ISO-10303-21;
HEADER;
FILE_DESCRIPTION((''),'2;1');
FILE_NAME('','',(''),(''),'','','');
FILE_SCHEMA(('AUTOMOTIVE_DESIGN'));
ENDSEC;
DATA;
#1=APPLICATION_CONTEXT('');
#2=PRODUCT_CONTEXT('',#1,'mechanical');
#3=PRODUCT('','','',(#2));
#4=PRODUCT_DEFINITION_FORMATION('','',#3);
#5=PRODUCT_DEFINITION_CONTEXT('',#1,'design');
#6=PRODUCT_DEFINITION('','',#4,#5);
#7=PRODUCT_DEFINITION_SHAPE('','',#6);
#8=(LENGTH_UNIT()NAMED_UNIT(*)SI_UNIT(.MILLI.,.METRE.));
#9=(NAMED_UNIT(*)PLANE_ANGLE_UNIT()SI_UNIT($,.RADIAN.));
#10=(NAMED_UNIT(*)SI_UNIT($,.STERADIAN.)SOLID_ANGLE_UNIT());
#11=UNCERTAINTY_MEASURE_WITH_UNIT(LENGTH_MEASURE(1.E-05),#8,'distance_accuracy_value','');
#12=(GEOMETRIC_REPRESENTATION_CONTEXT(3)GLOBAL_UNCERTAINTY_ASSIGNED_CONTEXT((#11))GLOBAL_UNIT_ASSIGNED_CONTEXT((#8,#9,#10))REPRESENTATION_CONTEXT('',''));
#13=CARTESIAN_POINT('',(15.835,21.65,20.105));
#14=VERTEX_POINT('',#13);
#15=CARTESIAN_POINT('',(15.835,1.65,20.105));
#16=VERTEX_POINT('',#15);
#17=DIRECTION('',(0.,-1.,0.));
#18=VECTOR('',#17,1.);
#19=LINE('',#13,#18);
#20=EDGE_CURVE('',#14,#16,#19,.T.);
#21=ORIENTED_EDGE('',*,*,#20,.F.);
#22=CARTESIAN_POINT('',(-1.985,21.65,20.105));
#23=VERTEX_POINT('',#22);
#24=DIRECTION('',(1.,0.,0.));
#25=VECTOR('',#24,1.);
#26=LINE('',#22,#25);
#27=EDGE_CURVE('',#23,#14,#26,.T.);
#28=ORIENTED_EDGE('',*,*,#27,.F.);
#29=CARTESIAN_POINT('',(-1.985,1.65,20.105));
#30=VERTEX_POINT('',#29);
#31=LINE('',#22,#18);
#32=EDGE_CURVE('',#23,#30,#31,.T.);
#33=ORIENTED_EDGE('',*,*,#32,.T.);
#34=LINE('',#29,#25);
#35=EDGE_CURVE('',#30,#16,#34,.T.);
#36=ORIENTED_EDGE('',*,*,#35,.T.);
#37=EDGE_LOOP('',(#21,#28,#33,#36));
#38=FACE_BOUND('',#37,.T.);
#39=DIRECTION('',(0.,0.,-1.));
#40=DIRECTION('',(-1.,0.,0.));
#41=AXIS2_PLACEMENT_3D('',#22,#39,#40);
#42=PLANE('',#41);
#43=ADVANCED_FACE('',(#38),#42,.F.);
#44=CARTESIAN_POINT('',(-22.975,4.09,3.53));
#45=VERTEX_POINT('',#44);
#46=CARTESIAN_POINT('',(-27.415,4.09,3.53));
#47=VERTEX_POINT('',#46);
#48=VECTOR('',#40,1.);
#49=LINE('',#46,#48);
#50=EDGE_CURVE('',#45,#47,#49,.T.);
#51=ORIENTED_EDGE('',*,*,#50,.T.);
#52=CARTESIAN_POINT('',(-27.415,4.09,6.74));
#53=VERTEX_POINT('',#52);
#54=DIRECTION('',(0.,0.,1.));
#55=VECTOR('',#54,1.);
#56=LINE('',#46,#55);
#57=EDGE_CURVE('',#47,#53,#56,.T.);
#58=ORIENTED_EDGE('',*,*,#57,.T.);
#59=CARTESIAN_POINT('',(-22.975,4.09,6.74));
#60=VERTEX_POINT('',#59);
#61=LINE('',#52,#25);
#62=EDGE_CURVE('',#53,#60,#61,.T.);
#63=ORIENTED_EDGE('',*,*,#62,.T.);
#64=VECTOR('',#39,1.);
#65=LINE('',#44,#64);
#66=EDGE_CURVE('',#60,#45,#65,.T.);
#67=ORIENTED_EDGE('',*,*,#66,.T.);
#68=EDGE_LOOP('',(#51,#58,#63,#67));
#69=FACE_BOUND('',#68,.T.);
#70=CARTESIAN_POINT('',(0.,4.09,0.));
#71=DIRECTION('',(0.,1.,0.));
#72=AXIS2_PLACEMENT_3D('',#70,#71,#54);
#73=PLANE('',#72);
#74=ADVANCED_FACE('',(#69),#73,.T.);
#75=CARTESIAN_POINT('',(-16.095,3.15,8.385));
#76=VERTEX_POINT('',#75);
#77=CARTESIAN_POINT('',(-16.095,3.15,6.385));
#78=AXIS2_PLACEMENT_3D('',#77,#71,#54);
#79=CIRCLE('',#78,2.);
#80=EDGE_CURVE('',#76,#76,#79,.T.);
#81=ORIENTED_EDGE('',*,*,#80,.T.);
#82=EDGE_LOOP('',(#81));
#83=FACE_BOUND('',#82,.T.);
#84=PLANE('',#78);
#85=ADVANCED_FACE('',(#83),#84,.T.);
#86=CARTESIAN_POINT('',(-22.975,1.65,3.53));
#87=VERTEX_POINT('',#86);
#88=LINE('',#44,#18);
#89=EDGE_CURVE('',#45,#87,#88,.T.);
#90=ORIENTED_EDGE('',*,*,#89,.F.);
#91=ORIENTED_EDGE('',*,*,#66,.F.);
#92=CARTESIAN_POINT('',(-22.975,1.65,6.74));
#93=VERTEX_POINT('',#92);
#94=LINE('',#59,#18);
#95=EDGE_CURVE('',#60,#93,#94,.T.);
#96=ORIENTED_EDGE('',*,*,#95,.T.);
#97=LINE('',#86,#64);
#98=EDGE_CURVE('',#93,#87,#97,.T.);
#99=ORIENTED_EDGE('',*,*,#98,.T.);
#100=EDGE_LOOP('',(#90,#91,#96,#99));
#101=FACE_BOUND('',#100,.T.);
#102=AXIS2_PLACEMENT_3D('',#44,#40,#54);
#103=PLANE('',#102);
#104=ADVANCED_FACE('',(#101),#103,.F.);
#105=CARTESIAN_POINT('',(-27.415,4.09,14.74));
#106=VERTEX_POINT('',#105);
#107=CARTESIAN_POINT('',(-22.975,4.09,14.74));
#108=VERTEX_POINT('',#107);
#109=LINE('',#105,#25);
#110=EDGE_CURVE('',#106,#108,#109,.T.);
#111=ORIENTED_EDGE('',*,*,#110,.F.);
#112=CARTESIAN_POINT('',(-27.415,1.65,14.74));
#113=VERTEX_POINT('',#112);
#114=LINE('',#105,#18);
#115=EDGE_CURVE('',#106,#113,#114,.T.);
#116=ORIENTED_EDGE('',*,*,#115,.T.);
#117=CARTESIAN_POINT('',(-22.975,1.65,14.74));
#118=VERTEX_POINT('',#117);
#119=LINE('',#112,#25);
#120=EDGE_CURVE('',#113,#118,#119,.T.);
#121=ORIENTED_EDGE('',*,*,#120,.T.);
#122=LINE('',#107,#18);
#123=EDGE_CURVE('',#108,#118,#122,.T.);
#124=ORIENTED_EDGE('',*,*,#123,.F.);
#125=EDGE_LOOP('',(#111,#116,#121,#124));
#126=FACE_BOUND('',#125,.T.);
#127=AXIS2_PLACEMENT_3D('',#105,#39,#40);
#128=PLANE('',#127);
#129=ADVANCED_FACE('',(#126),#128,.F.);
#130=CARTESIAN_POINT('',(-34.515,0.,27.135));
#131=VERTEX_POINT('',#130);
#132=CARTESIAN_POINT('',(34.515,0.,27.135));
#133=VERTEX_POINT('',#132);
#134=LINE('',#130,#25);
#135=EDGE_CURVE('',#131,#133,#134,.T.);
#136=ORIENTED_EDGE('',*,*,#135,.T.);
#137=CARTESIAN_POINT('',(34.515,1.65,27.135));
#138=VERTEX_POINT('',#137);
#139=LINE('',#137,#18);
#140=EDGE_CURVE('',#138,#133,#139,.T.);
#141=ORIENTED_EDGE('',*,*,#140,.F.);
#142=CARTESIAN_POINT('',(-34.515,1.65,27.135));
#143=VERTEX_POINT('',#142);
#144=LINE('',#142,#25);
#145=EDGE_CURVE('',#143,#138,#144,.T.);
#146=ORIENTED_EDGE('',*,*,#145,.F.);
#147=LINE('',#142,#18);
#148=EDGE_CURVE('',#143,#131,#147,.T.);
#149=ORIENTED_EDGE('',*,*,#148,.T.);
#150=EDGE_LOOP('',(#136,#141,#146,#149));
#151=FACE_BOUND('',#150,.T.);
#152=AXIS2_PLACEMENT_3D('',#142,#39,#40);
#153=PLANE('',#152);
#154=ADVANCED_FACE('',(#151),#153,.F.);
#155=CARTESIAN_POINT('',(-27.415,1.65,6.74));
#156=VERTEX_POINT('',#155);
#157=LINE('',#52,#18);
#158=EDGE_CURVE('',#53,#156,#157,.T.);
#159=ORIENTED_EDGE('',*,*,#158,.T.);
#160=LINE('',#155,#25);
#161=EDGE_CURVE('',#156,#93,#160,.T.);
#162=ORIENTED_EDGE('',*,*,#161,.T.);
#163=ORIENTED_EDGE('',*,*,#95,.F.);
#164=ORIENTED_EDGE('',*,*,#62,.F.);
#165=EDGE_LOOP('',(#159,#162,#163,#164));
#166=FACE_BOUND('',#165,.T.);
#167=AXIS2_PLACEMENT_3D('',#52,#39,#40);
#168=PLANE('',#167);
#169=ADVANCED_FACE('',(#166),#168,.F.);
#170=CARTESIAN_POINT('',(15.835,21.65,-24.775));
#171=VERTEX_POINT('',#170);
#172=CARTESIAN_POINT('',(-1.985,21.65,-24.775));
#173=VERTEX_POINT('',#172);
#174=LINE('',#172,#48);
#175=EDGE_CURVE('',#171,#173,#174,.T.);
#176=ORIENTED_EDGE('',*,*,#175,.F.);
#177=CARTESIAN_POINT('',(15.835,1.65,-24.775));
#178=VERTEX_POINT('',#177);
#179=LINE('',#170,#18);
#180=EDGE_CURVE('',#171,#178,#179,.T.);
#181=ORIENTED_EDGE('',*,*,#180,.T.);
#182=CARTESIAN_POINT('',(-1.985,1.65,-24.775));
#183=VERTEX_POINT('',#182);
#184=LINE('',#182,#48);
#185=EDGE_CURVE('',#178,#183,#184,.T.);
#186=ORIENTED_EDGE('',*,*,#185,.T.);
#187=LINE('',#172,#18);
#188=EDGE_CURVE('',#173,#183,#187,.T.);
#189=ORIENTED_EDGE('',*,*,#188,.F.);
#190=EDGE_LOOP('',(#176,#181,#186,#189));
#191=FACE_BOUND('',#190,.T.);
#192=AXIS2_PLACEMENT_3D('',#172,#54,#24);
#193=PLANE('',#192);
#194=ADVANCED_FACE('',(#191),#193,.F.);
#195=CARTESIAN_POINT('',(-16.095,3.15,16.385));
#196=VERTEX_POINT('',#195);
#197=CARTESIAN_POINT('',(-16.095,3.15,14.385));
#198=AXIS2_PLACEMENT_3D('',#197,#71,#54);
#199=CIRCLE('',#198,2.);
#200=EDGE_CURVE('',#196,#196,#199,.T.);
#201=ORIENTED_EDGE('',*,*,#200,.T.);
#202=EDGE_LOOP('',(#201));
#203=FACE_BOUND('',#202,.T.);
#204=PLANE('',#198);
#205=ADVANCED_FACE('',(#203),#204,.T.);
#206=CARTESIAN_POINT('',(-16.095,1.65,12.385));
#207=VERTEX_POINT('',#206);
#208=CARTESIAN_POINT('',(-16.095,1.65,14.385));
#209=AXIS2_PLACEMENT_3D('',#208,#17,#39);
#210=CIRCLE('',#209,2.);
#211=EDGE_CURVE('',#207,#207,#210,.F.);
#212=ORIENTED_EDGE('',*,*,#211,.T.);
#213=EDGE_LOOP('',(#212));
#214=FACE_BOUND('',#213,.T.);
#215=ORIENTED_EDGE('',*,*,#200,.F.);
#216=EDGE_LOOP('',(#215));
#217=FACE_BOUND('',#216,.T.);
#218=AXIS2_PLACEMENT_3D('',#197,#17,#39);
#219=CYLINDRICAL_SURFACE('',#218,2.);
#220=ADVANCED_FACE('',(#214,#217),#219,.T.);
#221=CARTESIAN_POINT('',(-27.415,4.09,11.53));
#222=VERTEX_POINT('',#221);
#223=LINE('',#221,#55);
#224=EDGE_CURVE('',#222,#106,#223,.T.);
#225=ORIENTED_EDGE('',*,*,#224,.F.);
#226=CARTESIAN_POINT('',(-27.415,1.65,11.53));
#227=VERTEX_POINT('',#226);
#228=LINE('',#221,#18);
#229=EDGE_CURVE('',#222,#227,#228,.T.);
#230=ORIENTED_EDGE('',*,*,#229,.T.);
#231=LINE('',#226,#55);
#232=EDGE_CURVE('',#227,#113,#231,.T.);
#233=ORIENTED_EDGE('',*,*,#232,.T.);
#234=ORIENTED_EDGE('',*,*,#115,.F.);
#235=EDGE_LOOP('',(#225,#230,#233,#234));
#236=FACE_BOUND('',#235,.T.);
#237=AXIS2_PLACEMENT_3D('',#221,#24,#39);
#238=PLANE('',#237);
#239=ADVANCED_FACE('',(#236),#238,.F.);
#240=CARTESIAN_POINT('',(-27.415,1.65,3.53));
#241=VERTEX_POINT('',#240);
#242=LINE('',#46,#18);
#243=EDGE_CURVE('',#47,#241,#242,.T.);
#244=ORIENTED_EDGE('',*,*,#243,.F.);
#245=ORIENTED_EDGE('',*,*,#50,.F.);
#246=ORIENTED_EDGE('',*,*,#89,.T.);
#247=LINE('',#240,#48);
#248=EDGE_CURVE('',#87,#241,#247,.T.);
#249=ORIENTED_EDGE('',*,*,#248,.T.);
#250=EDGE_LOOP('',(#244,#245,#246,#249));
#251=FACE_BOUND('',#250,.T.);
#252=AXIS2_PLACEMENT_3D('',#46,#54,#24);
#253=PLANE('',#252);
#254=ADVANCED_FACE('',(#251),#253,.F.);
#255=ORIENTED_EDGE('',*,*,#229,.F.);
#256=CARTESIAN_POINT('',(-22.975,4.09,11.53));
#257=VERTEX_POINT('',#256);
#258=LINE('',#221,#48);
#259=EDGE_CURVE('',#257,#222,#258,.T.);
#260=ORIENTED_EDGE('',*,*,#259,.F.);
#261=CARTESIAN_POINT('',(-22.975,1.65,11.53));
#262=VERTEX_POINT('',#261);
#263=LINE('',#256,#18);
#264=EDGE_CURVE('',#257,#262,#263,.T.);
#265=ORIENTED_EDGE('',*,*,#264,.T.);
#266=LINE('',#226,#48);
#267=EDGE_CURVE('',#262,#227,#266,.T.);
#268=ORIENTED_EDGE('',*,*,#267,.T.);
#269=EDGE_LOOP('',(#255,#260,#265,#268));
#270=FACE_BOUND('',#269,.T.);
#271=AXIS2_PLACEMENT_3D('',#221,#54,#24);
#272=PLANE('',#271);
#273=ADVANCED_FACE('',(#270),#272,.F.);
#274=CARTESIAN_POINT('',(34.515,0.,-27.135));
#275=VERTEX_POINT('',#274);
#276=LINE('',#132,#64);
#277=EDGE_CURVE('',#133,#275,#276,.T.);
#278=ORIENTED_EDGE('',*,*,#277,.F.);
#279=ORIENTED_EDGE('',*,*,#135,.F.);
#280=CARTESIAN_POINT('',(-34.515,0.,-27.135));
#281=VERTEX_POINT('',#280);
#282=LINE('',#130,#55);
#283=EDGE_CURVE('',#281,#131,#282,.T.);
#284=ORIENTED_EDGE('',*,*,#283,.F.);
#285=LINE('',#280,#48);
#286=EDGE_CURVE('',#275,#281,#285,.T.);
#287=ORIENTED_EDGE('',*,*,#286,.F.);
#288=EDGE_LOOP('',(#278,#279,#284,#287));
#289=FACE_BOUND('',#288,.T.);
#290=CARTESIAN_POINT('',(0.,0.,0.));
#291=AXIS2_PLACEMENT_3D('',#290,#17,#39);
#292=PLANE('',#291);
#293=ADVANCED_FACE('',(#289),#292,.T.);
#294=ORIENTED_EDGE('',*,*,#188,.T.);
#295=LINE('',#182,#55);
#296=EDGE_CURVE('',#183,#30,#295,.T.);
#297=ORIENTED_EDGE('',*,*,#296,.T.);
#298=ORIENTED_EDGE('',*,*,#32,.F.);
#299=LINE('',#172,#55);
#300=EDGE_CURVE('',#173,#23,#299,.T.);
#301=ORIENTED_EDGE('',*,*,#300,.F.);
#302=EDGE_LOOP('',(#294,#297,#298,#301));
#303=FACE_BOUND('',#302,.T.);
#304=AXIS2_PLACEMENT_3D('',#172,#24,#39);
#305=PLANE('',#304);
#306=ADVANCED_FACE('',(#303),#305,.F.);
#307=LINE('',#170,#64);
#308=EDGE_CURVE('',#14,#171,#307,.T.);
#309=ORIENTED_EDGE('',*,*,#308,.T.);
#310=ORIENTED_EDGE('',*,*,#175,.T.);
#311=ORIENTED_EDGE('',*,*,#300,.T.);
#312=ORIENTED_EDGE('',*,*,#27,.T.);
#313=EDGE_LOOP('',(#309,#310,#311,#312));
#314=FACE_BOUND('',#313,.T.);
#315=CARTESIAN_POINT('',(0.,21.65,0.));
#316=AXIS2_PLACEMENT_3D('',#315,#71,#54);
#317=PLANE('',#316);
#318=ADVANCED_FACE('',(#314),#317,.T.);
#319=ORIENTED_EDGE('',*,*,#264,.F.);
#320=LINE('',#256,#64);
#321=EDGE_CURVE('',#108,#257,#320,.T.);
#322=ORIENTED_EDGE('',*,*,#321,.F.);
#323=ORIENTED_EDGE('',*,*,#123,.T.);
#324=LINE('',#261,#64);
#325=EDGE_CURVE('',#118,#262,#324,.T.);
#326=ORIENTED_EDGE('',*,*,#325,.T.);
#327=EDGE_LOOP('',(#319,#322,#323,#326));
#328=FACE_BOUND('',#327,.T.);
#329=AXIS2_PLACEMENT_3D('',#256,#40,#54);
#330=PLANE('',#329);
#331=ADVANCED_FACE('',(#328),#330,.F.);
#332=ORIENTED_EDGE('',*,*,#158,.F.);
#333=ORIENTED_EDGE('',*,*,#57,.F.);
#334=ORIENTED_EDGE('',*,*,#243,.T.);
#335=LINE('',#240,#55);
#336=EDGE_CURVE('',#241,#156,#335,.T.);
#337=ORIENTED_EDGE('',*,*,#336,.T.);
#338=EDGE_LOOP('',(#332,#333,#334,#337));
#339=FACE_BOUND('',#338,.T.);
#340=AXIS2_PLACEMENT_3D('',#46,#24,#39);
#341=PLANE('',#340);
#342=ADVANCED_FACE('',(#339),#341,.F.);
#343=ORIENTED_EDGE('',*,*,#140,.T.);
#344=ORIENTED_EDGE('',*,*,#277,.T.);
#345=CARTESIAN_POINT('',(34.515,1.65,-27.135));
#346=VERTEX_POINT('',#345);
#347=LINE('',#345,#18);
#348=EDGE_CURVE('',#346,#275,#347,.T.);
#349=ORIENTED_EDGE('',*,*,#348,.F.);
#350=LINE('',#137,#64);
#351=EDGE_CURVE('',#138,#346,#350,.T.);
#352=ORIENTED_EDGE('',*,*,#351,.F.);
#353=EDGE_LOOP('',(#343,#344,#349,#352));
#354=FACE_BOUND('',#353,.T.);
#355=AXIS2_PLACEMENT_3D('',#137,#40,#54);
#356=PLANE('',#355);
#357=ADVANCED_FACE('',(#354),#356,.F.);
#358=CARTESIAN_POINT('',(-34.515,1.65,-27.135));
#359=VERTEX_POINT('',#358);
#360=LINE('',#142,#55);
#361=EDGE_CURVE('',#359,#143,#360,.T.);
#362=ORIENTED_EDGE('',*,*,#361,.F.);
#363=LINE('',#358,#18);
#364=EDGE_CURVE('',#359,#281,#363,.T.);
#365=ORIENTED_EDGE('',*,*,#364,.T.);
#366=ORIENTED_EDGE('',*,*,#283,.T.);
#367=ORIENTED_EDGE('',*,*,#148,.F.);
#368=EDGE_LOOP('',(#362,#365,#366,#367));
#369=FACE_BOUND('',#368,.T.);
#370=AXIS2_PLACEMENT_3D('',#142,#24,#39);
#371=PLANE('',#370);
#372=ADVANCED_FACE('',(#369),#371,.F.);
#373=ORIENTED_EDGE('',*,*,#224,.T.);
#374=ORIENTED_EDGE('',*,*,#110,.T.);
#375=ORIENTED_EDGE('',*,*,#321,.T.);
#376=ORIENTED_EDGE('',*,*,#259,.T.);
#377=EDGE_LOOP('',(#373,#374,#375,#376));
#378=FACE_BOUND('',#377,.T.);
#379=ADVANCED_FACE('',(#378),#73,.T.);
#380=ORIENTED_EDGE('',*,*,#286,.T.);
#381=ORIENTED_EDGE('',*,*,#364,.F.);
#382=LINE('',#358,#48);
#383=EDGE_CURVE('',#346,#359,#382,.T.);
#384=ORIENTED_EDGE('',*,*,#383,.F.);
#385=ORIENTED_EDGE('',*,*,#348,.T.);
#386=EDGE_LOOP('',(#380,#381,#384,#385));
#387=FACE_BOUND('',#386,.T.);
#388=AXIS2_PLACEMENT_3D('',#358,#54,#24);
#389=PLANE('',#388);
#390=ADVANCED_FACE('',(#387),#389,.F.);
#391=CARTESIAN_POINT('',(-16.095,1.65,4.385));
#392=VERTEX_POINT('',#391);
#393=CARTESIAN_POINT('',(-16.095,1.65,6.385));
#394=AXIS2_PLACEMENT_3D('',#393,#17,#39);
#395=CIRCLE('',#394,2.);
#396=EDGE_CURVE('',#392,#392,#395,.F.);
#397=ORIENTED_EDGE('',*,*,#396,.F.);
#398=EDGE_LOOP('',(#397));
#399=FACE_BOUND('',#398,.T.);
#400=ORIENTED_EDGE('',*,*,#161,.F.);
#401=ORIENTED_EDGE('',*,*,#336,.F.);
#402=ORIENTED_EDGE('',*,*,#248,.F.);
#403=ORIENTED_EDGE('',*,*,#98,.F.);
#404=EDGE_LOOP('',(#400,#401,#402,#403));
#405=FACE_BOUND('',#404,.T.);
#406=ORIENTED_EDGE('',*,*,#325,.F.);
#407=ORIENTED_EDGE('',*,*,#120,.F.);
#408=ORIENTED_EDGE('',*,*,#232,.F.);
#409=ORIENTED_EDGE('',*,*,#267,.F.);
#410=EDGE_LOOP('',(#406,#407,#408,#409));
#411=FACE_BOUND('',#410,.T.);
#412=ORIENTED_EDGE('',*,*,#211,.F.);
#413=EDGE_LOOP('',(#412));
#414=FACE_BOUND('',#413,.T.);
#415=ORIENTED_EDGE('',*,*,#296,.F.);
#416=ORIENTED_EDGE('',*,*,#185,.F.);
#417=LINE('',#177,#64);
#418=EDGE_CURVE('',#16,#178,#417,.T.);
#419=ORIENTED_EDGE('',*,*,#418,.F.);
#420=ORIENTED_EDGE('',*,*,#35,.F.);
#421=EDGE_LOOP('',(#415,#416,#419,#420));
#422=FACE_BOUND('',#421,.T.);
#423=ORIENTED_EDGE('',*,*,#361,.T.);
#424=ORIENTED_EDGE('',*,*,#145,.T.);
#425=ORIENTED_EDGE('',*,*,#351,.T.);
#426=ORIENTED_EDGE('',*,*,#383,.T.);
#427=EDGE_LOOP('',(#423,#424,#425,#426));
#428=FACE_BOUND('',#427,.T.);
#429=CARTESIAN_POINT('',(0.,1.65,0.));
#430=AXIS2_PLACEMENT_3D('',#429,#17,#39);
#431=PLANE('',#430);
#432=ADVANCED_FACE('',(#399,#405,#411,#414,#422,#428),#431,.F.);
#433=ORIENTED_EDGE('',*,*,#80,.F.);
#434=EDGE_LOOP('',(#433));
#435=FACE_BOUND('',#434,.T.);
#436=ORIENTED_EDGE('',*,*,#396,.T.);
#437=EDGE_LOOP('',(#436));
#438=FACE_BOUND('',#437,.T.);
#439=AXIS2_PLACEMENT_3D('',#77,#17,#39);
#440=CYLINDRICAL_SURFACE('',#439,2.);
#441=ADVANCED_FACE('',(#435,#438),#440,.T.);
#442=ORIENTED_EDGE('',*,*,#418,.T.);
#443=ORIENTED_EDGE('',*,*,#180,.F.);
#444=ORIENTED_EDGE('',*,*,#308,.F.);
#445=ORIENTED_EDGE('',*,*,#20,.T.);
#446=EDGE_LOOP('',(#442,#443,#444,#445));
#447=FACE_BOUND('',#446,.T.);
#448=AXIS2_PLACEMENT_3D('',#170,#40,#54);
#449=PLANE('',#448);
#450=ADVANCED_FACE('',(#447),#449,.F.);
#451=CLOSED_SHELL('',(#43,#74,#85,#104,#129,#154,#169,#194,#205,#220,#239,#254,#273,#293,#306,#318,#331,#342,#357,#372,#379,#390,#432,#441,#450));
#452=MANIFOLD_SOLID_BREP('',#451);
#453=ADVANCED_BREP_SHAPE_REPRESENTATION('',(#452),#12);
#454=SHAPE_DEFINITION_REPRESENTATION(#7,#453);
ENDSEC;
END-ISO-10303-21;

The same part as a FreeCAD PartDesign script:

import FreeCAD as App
import Part
import Sketcher
from FreeCAD import Vector
Q = App.Units.Quantity


def add_polygon(sketch, points):
    """Adds a closed chain of lines whose ends are joined by coincident constraints."""
    first, n = sketch.GeometryCount, len(points)
    for a, b in zip(points, points[1:] + points[:1]):
        sketch.addGeometry(Part.LineSegment(App.Vector(*a, 0), App.Vector(*b, 0)), False)
    for i in range(n):
        sketch.addConstraint(Sketcher.Constraint("Coincident", first + i, 2, first + (i + 1) % n, 1))

doc = App.newDocument("Part")
body = doc.addObject("PartDesign::Body", "Body")

sketch1 = doc.addObject("Sketcher::SketchObject", "Sketch")
body.addObject(sketch1)
sketch1.AttachmentSupport = (doc.XZ_Plane, [""])
sketch1.MapMode = "FlatFace"
add_polygon(sketch1, [(-35, -27), (-35, 27), (35, 27), (35, -27)])
sketch1.addConstraint([
    Sketcher.Constraint("Vertical", 0),
    Sketcher.Constraint("Horizontal", 1),
    Sketcher.Constraint("Vertical", 2),
    Sketcher.Constraint("Horizontal", 3),
    Sketcher.Constraint("Symmetric", 0, 2, 2, 2, -1, 1),
    Sketcher.Constraint("DistanceX", 1, 1, 1, 2, Q("69.03 mm")),
    Sketcher.Constraint("DistanceY", 0, 1, 0, 2, Q("54.27 mm")),
])
pad1 = doc.addObject("PartDesign::Pad", "Pad")
body.addObject(pad1)
pad1.Profile = sketch1
pad1.Length = 1.65
pad1.Reversed = True

sketch2 = doc.addObject("Sketcher::SketchObject", "Sketch001")
body.addObject(sketch2)
sketch2.AttachmentSupport = (doc.XZ_Plane, [""])
sketch2.MapMode = "FlatFace"
sketch2.AttachmentOffset = App.Placement(Vector(0, 0, -1.65), App.Rotation())
sketch2.addGeometry([
    Part.Circle(Vector(-16.1, 14.4, 0), Vector(0, 0, 1), 2),
    Part.Circle(Vector(-16.1, 6.4, 0), Vector(0, 0, 1), 2),
], False)
sketch2.addConstraint([
    Sketcher.Constraint("Equal", 0, 1),
    Sketcher.Constraint("Vertical", 0, 3, 1, 3),
    Sketcher.Constraint("Diameter", 0, Q("4 mm")),
    Sketcher.Constraint("DistanceY", 1, 3, 0, 3, Q("8 mm")),
    Sketcher.Constraint("DistanceX", 0, 3, -1, 1, Q("16.095 mm")),
    Sketcher.Constraint("DistanceY", -1, 1, 0, 3, Q("14.385 mm")),
])
pad2 = doc.addObject("PartDesign::Pad", "Pad001")
body.addObject(pad2)
pad2.Profile = sketch2
pad2.Length = 1.5
pad2.Reversed = True

sketch3 = doc.addObject("Sketcher::SketchObject", "Sketch002")
body.addObject(sketch3)
sketch3.AttachmentSupport = (doc.XZ_Plane, [""])
sketch3.MapMode = "FlatFace"
sketch3.AttachmentOffset = App.Placement(Vector(0, 0, -1.65), App.Rotation())
add_polygon(sketch3, [(-27.4, 11.5), (-27.4, 14.7), (-23, 14.7), (-23, 11.5)])
add_polygon(sketch3, [(-27.4, 3.5), (-27.4, 6.7), (-23, 6.7), (-23, 3.5)])
sketch3.addConstraint([
    Sketcher.Constraint("Vertical", 0),
    Sketcher.Constraint("Horizontal", 1),
    Sketcher.Constraint("Vertical", 2),
    Sketcher.Constraint("Horizontal", 3),
    Sketcher.Constraint("Vertical", 4),
    Sketcher.Constraint("Horizontal", 5),
    Sketcher.Constraint("Vertical", 6),
    Sketcher.Constraint("Horizontal", 7),
    Sketcher.Constraint("Vertical", 3, 2, 4, 2),
    Sketcher.Constraint("Vertical", 2, 2, 5, 2),
    Sketcher.Constraint("Equal", 2, 4),
    Sketcher.Constraint("DistanceY", 4, 2, 0, 2, Q("8 mm")),
    Sketcher.Constraint("DistanceX", 1, 1, 1, 2, Q("4.44 mm")),
    Sketcher.Constraint("DistanceY", 0, 1, 0, 2, Q("3.21 mm")),
    Sketcher.Constraint("DistanceY", -1, 1, 0, 2, Q("14.74 mm")),
    Sketcher.Constraint("DistanceX", 0, 2, -1, 1, Q("27.415 mm")),
])
pad3 = doc.addObject("PartDesign::Pad", "Pad002")
body.addObject(pad3)
pad3.Profile = sketch3
pad3.Length = 2.44
pad3.Reversed = True

sketch4 = doc.addObject("Sketcher::SketchObject", "Sketch003")
body.addObject(sketch4)
sketch4.AttachmentSupport = (doc.XZ_Plane, [""])
sketch4.MapMode = "FlatFace"
sketch4.AttachmentOffset = App.Placement(Vector(0, 0, -1.65), App.Rotation())
add_polygon(sketch4, [(-2, -25), (-2, 20), (16, 20), (16, -25)])
sketch4.addConstraint([
    Sketcher.Constraint("Vertical", 0),
    Sketcher.Constraint("Horizontal", 1),
    Sketcher.Constraint("Vertical", 2),
    Sketcher.Constraint("Horizontal", 3),
    Sketcher.Constraint("DistanceX", 1, 1, 1, 2, Q("17.82 mm")),
    Sketcher.Constraint("DistanceY", 0, 1, 0, 2, Q("44.88 mm")),
    Sketcher.Constraint("DistanceX", 0, 2, -1, 1, Q("1.985 mm")),
    Sketcher.Constraint("DistanceY", -1, 1, 0, 2, Q("20.105 mm")),
])
pad4 = doc.addObject("PartDesign::Pad", "Pad003")
body.addObject(pad4)
pad4.Profile = sketch4
pad4.Length = 20
pad4.Reversed = True

doc.recompute()
